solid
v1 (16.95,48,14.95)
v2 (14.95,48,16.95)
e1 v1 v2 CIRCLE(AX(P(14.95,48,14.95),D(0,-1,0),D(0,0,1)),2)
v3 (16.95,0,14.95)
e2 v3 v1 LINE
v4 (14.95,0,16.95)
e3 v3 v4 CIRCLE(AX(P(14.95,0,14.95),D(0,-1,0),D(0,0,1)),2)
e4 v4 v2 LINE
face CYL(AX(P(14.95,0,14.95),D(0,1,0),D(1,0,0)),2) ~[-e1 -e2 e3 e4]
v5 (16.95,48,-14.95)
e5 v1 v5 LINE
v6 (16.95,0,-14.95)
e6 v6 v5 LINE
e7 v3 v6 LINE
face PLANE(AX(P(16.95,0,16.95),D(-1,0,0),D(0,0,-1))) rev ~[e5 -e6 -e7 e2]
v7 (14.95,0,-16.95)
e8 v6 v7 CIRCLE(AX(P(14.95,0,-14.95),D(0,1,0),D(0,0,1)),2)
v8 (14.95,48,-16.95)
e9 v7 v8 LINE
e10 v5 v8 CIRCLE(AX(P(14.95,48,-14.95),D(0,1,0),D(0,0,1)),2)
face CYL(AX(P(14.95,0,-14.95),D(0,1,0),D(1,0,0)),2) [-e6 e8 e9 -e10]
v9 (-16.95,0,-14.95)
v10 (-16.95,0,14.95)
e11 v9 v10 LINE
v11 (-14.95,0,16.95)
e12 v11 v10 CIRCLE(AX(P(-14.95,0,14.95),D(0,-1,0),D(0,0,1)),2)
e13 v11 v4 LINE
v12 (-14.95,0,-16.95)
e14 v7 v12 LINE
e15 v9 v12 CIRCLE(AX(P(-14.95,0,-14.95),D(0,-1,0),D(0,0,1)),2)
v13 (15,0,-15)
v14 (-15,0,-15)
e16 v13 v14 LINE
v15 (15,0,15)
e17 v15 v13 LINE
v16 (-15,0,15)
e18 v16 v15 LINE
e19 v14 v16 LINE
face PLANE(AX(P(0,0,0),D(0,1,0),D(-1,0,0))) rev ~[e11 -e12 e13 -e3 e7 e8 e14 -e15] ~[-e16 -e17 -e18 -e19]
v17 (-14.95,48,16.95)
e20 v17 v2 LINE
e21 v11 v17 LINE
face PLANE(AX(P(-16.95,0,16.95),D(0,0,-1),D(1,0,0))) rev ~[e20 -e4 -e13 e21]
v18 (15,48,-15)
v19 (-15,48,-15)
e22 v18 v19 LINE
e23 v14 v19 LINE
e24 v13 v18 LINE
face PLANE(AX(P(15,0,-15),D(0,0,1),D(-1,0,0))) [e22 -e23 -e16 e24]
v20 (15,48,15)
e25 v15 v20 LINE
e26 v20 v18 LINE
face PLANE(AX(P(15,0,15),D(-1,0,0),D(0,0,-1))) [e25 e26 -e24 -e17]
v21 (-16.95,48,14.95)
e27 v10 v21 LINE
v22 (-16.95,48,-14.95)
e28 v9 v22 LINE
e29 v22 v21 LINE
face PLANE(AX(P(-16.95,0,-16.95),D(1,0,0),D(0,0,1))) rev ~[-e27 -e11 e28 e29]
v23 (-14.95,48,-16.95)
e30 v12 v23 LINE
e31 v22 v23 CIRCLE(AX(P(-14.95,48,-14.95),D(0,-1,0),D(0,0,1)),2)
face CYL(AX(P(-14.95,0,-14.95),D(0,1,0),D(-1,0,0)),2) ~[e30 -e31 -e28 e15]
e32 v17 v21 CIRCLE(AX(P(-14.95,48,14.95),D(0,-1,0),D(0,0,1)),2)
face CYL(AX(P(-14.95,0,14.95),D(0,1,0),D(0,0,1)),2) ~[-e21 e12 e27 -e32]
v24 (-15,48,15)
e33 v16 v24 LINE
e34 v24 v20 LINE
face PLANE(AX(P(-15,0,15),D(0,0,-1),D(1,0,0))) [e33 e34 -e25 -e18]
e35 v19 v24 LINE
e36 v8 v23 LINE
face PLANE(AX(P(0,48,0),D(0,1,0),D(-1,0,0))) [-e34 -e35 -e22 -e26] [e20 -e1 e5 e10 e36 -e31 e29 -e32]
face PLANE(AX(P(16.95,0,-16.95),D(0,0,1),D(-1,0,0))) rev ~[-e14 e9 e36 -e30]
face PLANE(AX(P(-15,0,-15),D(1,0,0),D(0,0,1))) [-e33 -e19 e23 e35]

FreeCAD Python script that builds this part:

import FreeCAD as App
import Part
import Sketcher
from FreeCAD import Vector


def edges_at(feature, points):
    """Names of the edges that pass closest to the given points."""
    edges = feature.Shape.Edges
    near = lambda p: min(range(len(edges)), key=lambda i: edges[i].distToShape(Part.Vertex(*p))[0])
    return sorted({f"Edge{near(p) + 1}" for p in points})

doc = App.newDocument("Part")
body = doc.addObject("PartDesign::Body", "Body")

sketch1 = doc.addObject("Sketcher::SketchObject", "Sketch")
body.addObject(sketch1)
sketch1.AttachmentSupport = (doc.XZ_Plane, [""])
sketch1.MapMode = "FlatFace"
sketch1.addGeometry([
    Part.LineSegment(Vector(17, 17, 0), Vector(17, -17, 0)),
    Part.LineSegment(Vector(17, -17, 0), Vector(-17, -17, 0)),
    Part.LineSegment(Vector(-17, -17, 0), Vector(-17, 17, 0)),
    Part.LineSegment(Vector(-17, 17, 0), Vector(17, 17, 0)),
    Part.LineSegment(Vector(-15, -15, 0), Vector(15, -15, 0)),
    Part.LineSegment(Vector(15, -15, 0), Vector(15, 15, 0)),
    Part.LineSegment(Vector(15, 15, 0), Vector(-15, 15, 0)),
    Part.LineSegment(Vector(-15, 15, 0), Vector(-15, -15, 0)),
], False)
sketch1.addConstraint([
    Sketcher.Constraint("Coincident", 0, 2, 1, 1),
    Sketcher.Constraint("Coincident", 1, 2, 2, 1),
    Sketcher.Constraint("Coincident", 2, 2, 3, 1),
    Sketcher.Constraint("Coincident", 3, 2, 0, 1),
    Sketcher.Constraint("Coincident", 4, 2, 5, 1),
    Sketcher.Constraint("Coincident", 5, 2, 6, 1),
    Sketcher.Constraint("Coincident", 6, 2, 7, 1),
    Sketcher.Constraint("Coincident", 7, 2, 4, 1),
    Sketcher.Constraint("Vertical", 0),
    Sketcher.Constraint("Horizontal", 1),
    Sketcher.Constraint("Vertical", 2),
    Sketcher.Constraint("Horizontal", 3),
    Sketcher.Constraint("Horizontal", 4),
    Sketcher.Constraint("Vertical", 5),
    Sketcher.Constraint("Horizontal", 6),
    Sketcher.Constraint("Vertical", 7),
    Sketcher.Constraint("Symmetric", 0, 2, 2, 2, -1, 1),
    Sketcher.Constraint("Symmetric", 4, 2, 6, 2, -1, 1),
    Sketcher.Constraint("Equal", 3, 0),
    Sketcher.Constraint("Equal", 6, 5),
    Sketcher.Constraint("DistanceX", 4, 1, 4, 2, 30.0),
    Sketcher.Constraint("DistanceX", 1, 2, 1, 1, 33.9),
])
pad1 = doc.addObject("PartDesign::Pad", "Pad")
body.addObject(pad1)
pad1.Profile = sketch1
pad1.Length = 48
pad1.Reversed = True
doc.recompute()

fillet = doc.addObject("PartDesign::Fillet", "Fillet")
body.addObject(fillet)
fillet.Base = (pad1, edges_at(pad1, [
    (16.95, 24, 16.95),
    (16.95, 24, -16.95),
    (-16.95, 24, -16.95),
    (-16.95, 24, 16.95),
]))
fillet.Radius = 2

doc.recompute()
